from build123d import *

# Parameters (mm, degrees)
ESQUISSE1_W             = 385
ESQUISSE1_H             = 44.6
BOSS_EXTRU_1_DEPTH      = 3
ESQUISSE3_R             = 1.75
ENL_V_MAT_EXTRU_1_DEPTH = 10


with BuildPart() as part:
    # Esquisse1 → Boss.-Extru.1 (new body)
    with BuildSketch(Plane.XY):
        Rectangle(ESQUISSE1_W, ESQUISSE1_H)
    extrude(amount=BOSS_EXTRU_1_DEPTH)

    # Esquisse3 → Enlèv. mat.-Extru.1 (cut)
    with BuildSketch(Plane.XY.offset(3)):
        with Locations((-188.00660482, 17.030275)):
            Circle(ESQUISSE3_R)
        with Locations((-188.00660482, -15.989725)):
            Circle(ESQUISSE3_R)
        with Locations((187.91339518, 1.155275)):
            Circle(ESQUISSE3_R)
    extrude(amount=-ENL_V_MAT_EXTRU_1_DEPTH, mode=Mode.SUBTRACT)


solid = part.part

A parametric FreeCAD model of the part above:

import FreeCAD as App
import Part
import Sketcher
Q = App.Units.Quantity


def add_polygon(sketch, points):
    """Adds a closed chain of lines whose ends are joined by coincident constraints."""
    first, n = sketch.GeometryCount, len(points)
    for a, b in zip(points, points[1:] + points[:1]):
        sketch.addGeometry(Part.LineSegment(App.Vector(*a, 0), App.Vector(*b, 0)), False)
    for i in range(n):
        sketch.addConstraint(Sketcher.Constraint("Coincident", first + i, 2, first + (i + 1) % n, 1))

doc = App.newDocument("Part")
params = doc.addObject("Spreadsheet::Sheet", "Params")
for row, (alias, value) in enumerate([
    ("sketch1_width", "385 mm"),
    ("sketch1_height", "44.6 mm"),
    ("pad1_length", "3 mm"),
    ("sketch2_diameter", "3.5 mm"),
    ("pocket1_length", "10 mm"),
], start=1):
    params.set(f"A{row}", alias)
    params.set(f"B{row}", "=" + value)
    params.setAlias(f"B{row}", alias)

body = doc.addObject("PartDesign::Body", "Body")

sketch1 = body.newObject("Sketcher::SketchObject", "Sketch")
sketch1.AttachmentSupport = (doc.getObject("XY_Plane"), [""])
sketch1.MapMode = "FlatFace"
add_polygon(sketch1, [(-192, 22), (-192, -22), (192, -22), (192, 22)])
sketch1.addConstraint(Sketcher.Constraint("Vertical", 0))
sketch1.addConstraint(Sketcher.Constraint("Horizontal", 1))
sketch1.addConstraint(Sketcher.Constraint("Vertical", 2))
sketch1.addConstraint(Sketcher.Constraint("Horizontal", 3))
sketch1.addConstraint(Sketcher.Constraint("Symmetric", 0, 2, 2, 2, -1, 1))
sketch1.addConstraint(Sketcher.Constraint("DistanceX", 1, 1, 1, 2, Q("385 mm")))
sketch1.addConstraint(Sketcher.Constraint("DistanceY", 0, 2, 0, 1, Q("44.6 mm")))
sketch1.setExpression("Constraints[9]", "Params.sketch1_width")
sketch1.setExpression("Constraints[10]", "Params.sketch1_height")
pad1 = body.newObject("PartDesign::Pad", "Pad")
pad1.Profile = sketch1
pad1.setExpression("Length", "Params.pad1_length")

sketch2 = body.newObject("Sketcher::SketchObject", "Sketch001")
sketch2.AttachmentSupport = (doc.getObject("XY_Plane"), [""])
sketch2.MapMode = "FlatFace"
sketch2.AttachmentOffset = App.Placement(App.Vector(0, 0, 3), App.Rotation())
sketch2.addGeometry(Part.Circle(App.Vector(-188, 17, 0), App.Vector(0, 0, 1), 1.8), False)
sketch2.addGeometry(Part.Circle(App.Vector(-188, -16, 0), App.Vector(0, 0, 1), 1.8), False)
sketch2.addGeometry(Part.Circle(App.Vector(187.9, 1.2, 0), App.Vector(0, 0, 1), 1.8), False)
sketch2.addConstraint(Sketcher.Constraint("Equal", 0, 1))
sketch2.addConstraint(Sketcher.Constraint("Equal", 1, 2))
sketch2.addConstraint(Sketcher.Constraint("Vertical", 0, 3, 1, 3))
sketch2.addConstraint(Sketcher.Constraint("Diameter", 0, Q("3.5 mm")))
sketch2.addConstraint(Sketcher.Constraint("DistanceY", 1, 3, 0, 3, Q("33.02 mm")))
sketch2.addConstraint(Sketcher.Constraint("DistanceX", 0, 3, 2, 3, Q("375.92 mm")))
sketch2.addConstraint(Sketcher.Constraint("DistanceY", 2, 3, 0, 3, Q("15.875 mm")))
sketch2.addConstraint(Sketcher.Constraint("DistanceX", 0, 3, -1, 1, Q("188.006605 mm")))
sketch2.addConstraint(Sketcher.Constraint("DistanceY", -1, 1, 0, 3, Q("17.030275 mm")))
sketch2.setExpression("Constraints[3]", "Params.sketch2_diameter")
pocket1 = body.newObject("PartDesign::Pocket", "Pocket")
pocket1.Profile = sketch2
pocket1.setExpression("Length", "Params.pocket1_length")

doc.recompute()
